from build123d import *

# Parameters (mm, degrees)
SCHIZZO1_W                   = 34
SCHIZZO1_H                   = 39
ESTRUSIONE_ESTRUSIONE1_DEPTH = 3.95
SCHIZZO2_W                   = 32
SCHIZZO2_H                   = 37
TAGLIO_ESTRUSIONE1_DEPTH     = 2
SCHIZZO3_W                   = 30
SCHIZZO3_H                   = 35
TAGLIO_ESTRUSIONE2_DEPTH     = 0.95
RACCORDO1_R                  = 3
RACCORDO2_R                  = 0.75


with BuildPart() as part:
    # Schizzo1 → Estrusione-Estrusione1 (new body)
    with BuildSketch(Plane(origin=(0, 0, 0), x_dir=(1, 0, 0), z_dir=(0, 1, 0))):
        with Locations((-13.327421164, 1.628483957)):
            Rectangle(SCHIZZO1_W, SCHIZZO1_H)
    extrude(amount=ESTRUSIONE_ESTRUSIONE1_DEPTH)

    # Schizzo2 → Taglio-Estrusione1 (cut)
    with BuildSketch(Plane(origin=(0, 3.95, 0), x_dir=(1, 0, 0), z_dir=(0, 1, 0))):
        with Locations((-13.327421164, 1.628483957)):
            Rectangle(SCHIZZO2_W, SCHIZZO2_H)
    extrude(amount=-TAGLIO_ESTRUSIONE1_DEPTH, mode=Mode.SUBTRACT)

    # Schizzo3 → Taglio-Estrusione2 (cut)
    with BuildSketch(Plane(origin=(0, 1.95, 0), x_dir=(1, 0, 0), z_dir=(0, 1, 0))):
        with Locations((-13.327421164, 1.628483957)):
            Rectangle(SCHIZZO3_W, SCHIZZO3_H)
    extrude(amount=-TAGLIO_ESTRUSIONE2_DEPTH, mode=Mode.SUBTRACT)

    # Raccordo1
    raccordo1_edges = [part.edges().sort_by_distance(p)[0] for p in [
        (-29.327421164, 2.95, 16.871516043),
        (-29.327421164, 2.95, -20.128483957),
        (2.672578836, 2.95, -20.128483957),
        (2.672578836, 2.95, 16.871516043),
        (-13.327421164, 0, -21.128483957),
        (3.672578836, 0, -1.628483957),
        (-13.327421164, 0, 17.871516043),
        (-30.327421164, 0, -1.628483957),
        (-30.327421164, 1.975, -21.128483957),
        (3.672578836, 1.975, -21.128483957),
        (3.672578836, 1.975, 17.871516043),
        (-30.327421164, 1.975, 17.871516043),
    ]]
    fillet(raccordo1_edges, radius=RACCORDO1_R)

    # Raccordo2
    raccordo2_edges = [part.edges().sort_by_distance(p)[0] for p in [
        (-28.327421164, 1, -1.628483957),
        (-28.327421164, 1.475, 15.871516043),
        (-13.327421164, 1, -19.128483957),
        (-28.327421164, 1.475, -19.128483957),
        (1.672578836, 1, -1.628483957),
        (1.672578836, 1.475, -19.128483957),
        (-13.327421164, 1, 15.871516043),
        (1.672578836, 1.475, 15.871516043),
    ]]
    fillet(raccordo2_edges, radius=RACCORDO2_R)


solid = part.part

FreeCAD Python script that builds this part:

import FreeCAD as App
import Part
import Sketcher

V = App.Vector
Q = App.Units.Quantity


def edges_at(feature, points):
    """Names of the edges that pass closest to the given points."""
    edges = feature.Shape.Edges
    near = lambda p: min(range(len(edges)), key=lambda i: edges[i].distToShape(Part.Vertex(*p))[0])
    return sorted({f"Edge{near(p) + 1}" for p in points})


def add_polygon(sketch, points):
    """Adds a closed chain of lines whose ends are joined by coincident constraints."""
    first, n = sketch.GeometryCount, len(points)
    for a, b in zip(points, points[1:] + points[:1]):
        sketch.addGeometry(Part.LineSegment(App.Vector(*a, 0), App.Vector(*b, 0)), False)
    for i in range(n):
        sketch.addConstraint(Sketcher.Constraint("Coincident", first + i, 2, first + (i + 1) % n, 1))

doc = App.newDocument("Part")
params = doc.addObject("Spreadsheet::Sheet", "Params")
for row, (alias, value) in enumerate([
    ("sketch1_width", "34 mm"),
    ("sketch1_height", "39 mm"),
    ("pad1_length", "3.95 mm"),
    ("sketch2_width", "32 mm"),
    ("sketch2_height", "37 mm"),
    ("pocket1_length", "2 mm"),
    ("sketch3_width", "30 mm"),
    ("sketch3_height", "35 mm"),
    ("pocket2_length", "0.95 mm"),
    ("fillet_radius", "3 mm"),
    ("fillet2_radius", "0.75 mm"),
], start=1):
    params.set(f"A{row}", alias)
    params.set(f"B{row}", "=" + value)
    params.setAlias(f"B{row}", alias)

body = doc.addObject("PartDesign::Body", "Body")

sketch1 = doc.addObject("Sketcher::SketchObject", "Sketch")
body.addObject(sketch1)
sketch1.AttachmentSupport = (doc.XZ_Plane, [""])
sketch1.MapMode = "FlatFace"
add_polygon(sketch1, [(-30, -21), (-30, 18), (4, 18), (4, -21)])
sketch1.addConstraint(Sketcher.Constraint("Vertical", 0))
sketch1.addConstraint(Sketcher.Constraint("Horizontal", 1))
sketch1.addConstraint(Sketcher.Constraint("Vertical", 2))
sketch1.addConstraint(Sketcher.Constraint("Horizontal", 3))
sketch1.addConstraint(Sketcher.Constraint("DistanceX", 1, 1, 1, 2, Q("34 mm")))
sketch1.addConstraint(Sketcher.Constraint("DistanceY", 0, 1, 0, 2, Q("39 mm")))
sketch1.addConstraint(Sketcher.Constraint("DistanceX", 0, 2, -1, 1, Q("30.327421 mm")))
sketch1.addConstraint(Sketcher.Constraint("DistanceY", -1, 1, 0, 2, Q("17.871516 mm")))
sketch1.setExpression("Constraints[8]", "Params.sketch1_width")
sketch1.setExpression("Constraints[9]", "Params.sketch1_height")
pad1 = doc.addObject("PartDesign::Pad", "Pad")
body.addObject(pad1)
pad1.Profile = sketch1
pad1.setExpression("Length", "Params.pad1_length")
pad1.Reversed = True

sketch2 = doc.addObject("Sketcher::SketchObject", "Sketch001")
body.addObject(sketch2)
sketch2.AttachmentSupport = (doc.XZ_Plane, [""])
sketch2.MapMode = "FlatFace"
sketch2.AttachmentOffset = App.Placement(V(0, 0, -3.95), App.Rotation())
add_polygon(sketch2, [(-29, -20), (-29, 17), (3, 17), (3, -20)])
sketch2.addConstraint(Sketcher.Constraint("Vertical", 0))
sketch2.addConstraint(Sketcher.Constraint("Horizontal", 1))
sketch2.addConstraint(Sketcher.Constraint("Vertical", 2))
sketch2.addConstraint(Sketcher.Constraint("Horizontal", 3))
sketch2.addConstraint(Sketcher.Constraint("DistanceX", 1, 1, 1, 2, Q("32 mm")))
sketch2.addConstraint(Sketcher.Constraint("DistanceY", 0, 1, 0, 2, Q("37 mm")))
sketch2.addConstraint(Sketcher.Constraint("DistanceX", 0, 2, -1, 1, Q("29.327421 mm")))
sketch2.addConstraint(Sketcher.Constraint("DistanceY", -1, 1, 0, 2, Q("16.871516 mm")))
sketch2.setExpression("Constraints[8]", "Params.sketch2_width")
sketch2.setExpression("Constraints[9]", "Params.sketch2_height")
pocket1 = doc.addObject("PartDesign::Pocket", "Pocket")
body.addObject(pocket1)
pocket1.Profile = sketch2
pocket1.setExpression("Length", "Params.pocket1_length")
pocket1.Reversed = True

sketch3 = doc.addObject("Sketcher::SketchObject", "Sketch002")
body.addObject(sketch3)
sketch3.AttachmentSupport = (doc.XZ_Plane, [""])
sketch3.MapMode = "FlatFace"
sketch3.AttachmentOffset = App.Placement(V(0, 0, -1.95), App.Rotation())
add_polygon(sketch3, [(-28, -19), (-28, 16), (2, 16), (2, -19)])
sketch3.addConstraint(Sketcher.Constraint("Vertical", 0))
sketch3.addConstraint(Sketcher.Constraint("Horizontal", 1))
sketch3.addConstraint(Sketcher.Constraint("Vertical", 2))
sketch3.addConstraint(Sketcher.Constraint("Horizontal", 3))
sketch3.addConstraint(Sketcher.Constraint("DistanceX", 1, 1, 1, 2, Q("30 mm")))
sketch3.addConstraint(Sketcher.Constraint("DistanceY", 0, 1, 0, 2, Q("35 mm")))
sketch3.addConstraint(Sketcher.Constraint("DistanceX", 0, 2, -1, 1, Q("28.327421 mm")))
sketch3.addConstraint(Sketcher.Constraint("DistanceY", -1, 1, 0, 2, Q("15.871516 mm")))
sketch3.setExpression("Constraints[8]", "Params.sketch3_width")
sketch3.setExpression("Constraints[9]", "Params.sketch3_height")
pocket2 = doc.addObject("PartDesign::Pocket", "Pocket001")
body.addObject(pocket2)
pocket2.Profile = sketch3
pocket2.setExpression("Length", "Params.pocket2_length")
pocket2.Reversed = True
doc.recompute()

fillet = doc.addObject("PartDesign::Fillet", "Fillet")
body.addObject(fillet)
fillet.Base = (pocket2, edges_at(pocket2, [
    (-29.327, 2.95, 16.872),
    (-29.327, 2.95, -20.128),
    (2.673, 2.95, -20.128),
    (2.673, 2.95, 16.872),
    (-13.327, 0, -21.128),
    (3.673, 0, -1.628),
    (-13.327, 0, 17.872),
    (-30.327, 0, -1.628),
    (-30.327, 1.975, -21.128),
    (3.673, 1.975, -21.128),
    (3.673, 1.975, 17.872),
    (-30.327, 1.975, 17.872),
]))
fillet.setExpression("Radius", "Params.fillet_radius")
doc.recompute()

fillet2 = doc.addObject("PartDesign::Fillet", "Fillet001")
body.addObject(fillet2)
fillet2.Base = (fillet, edges_at(fillet, [
    (-28.327, 1, -1.628),
    (-28.327, 1.475, 15.872),
    (-13.327, 1, -19.128),
    (-28.327, 1.475, -19.128),
    (1.673, 1, -1.628),
    (1.673, 1.475, -19.128),
    (-13.327, 1, 15.872),
    (1.673, 1.475, 15.872),
]))
fillet2.setExpression("Radius", "Params.fillet2_radius")

doc.recompute()
